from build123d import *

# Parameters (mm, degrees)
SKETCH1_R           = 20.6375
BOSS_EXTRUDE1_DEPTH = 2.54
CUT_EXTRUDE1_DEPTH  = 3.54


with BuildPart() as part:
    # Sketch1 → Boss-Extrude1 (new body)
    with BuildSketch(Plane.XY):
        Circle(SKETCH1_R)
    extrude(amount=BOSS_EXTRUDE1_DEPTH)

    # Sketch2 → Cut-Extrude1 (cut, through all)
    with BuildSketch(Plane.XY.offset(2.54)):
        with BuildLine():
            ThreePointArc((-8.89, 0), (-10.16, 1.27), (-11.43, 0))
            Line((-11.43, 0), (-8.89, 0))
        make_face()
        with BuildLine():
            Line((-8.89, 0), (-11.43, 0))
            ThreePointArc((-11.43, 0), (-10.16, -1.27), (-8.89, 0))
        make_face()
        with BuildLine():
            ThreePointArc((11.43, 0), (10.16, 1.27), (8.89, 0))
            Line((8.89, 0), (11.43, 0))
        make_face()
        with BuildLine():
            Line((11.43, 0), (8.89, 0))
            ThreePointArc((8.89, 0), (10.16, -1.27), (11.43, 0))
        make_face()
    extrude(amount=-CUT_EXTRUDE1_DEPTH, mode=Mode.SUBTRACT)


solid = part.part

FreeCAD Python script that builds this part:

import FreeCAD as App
import Part
import Sketcher
Q = App.Units.Quantity

doc = App.newDocument("Part")
body = doc.addObject("PartDesign::Body", "Body")

sketch1 = body.newObject("Sketcher::SketchObject", "Sketch")
sketch1.AttachmentSupport = (doc.getObject("XY_Plane"), [""])
sketch1.MapMode = "FlatFace"
sketch1.addGeometry(Part.Circle(App.Vector(0, 0, 0), App.Vector(0, 0, 1), 21), False)
sketch1.addConstraint(Sketcher.Constraint("Coincident", 0, 3, -1, 1))
sketch1.addConstraint(Sketcher.Constraint("Diameter", 0, Q("1.625 in")))
pad1 = body.newObject("PartDesign::Pad", "Pad")
pad1.Profile = sketch1
pad1.Length = Q("0.1 in")

sketch2 = body.newObject("Sketcher::SketchObject", "Sketch001")
sketch2.AttachmentSupport = (doc.getObject("XY_Plane"), [""])
sketch2.MapMode = "FlatFace"
sketch2.AttachmentOffset = App.Placement(App.Vector(0, 0, 0.1 * 25.4), App.Rotation())
sketch2.addGeometry(Part.Circle(App.Vector(-10.2, 0, 0), App.Vector(0, 0, 1), 1.3), False)
sketch2.addGeometry(Part.Circle(App.Vector(10.2, 0, 0), App.Vector(0, 0, 1), 1.3), False)
sketch2.addConstraint(Sketcher.Constraint("Equal", 0, 1))
sketch2.addConstraint(Sketcher.Constraint("Symmetric", 0, 3, 1, 3, -1, 1))
sketch2.addConstraint(Sketcher.Constraint("PointOnObject", 0, 3, -1))
sketch2.addConstraint(Sketcher.Constraint("Diameter", 0, Q("0.1 in")))
sketch2.addConstraint(Sketcher.Constraint("DistanceX", 0, 3, -1, 1, Q("0.4 in")))
pocket1 = body.newObject("PartDesign::Pocket", "Pocket")
pocket1.Profile = sketch2
pocket1.Type = "ThroughAll"

doc.recompute()
